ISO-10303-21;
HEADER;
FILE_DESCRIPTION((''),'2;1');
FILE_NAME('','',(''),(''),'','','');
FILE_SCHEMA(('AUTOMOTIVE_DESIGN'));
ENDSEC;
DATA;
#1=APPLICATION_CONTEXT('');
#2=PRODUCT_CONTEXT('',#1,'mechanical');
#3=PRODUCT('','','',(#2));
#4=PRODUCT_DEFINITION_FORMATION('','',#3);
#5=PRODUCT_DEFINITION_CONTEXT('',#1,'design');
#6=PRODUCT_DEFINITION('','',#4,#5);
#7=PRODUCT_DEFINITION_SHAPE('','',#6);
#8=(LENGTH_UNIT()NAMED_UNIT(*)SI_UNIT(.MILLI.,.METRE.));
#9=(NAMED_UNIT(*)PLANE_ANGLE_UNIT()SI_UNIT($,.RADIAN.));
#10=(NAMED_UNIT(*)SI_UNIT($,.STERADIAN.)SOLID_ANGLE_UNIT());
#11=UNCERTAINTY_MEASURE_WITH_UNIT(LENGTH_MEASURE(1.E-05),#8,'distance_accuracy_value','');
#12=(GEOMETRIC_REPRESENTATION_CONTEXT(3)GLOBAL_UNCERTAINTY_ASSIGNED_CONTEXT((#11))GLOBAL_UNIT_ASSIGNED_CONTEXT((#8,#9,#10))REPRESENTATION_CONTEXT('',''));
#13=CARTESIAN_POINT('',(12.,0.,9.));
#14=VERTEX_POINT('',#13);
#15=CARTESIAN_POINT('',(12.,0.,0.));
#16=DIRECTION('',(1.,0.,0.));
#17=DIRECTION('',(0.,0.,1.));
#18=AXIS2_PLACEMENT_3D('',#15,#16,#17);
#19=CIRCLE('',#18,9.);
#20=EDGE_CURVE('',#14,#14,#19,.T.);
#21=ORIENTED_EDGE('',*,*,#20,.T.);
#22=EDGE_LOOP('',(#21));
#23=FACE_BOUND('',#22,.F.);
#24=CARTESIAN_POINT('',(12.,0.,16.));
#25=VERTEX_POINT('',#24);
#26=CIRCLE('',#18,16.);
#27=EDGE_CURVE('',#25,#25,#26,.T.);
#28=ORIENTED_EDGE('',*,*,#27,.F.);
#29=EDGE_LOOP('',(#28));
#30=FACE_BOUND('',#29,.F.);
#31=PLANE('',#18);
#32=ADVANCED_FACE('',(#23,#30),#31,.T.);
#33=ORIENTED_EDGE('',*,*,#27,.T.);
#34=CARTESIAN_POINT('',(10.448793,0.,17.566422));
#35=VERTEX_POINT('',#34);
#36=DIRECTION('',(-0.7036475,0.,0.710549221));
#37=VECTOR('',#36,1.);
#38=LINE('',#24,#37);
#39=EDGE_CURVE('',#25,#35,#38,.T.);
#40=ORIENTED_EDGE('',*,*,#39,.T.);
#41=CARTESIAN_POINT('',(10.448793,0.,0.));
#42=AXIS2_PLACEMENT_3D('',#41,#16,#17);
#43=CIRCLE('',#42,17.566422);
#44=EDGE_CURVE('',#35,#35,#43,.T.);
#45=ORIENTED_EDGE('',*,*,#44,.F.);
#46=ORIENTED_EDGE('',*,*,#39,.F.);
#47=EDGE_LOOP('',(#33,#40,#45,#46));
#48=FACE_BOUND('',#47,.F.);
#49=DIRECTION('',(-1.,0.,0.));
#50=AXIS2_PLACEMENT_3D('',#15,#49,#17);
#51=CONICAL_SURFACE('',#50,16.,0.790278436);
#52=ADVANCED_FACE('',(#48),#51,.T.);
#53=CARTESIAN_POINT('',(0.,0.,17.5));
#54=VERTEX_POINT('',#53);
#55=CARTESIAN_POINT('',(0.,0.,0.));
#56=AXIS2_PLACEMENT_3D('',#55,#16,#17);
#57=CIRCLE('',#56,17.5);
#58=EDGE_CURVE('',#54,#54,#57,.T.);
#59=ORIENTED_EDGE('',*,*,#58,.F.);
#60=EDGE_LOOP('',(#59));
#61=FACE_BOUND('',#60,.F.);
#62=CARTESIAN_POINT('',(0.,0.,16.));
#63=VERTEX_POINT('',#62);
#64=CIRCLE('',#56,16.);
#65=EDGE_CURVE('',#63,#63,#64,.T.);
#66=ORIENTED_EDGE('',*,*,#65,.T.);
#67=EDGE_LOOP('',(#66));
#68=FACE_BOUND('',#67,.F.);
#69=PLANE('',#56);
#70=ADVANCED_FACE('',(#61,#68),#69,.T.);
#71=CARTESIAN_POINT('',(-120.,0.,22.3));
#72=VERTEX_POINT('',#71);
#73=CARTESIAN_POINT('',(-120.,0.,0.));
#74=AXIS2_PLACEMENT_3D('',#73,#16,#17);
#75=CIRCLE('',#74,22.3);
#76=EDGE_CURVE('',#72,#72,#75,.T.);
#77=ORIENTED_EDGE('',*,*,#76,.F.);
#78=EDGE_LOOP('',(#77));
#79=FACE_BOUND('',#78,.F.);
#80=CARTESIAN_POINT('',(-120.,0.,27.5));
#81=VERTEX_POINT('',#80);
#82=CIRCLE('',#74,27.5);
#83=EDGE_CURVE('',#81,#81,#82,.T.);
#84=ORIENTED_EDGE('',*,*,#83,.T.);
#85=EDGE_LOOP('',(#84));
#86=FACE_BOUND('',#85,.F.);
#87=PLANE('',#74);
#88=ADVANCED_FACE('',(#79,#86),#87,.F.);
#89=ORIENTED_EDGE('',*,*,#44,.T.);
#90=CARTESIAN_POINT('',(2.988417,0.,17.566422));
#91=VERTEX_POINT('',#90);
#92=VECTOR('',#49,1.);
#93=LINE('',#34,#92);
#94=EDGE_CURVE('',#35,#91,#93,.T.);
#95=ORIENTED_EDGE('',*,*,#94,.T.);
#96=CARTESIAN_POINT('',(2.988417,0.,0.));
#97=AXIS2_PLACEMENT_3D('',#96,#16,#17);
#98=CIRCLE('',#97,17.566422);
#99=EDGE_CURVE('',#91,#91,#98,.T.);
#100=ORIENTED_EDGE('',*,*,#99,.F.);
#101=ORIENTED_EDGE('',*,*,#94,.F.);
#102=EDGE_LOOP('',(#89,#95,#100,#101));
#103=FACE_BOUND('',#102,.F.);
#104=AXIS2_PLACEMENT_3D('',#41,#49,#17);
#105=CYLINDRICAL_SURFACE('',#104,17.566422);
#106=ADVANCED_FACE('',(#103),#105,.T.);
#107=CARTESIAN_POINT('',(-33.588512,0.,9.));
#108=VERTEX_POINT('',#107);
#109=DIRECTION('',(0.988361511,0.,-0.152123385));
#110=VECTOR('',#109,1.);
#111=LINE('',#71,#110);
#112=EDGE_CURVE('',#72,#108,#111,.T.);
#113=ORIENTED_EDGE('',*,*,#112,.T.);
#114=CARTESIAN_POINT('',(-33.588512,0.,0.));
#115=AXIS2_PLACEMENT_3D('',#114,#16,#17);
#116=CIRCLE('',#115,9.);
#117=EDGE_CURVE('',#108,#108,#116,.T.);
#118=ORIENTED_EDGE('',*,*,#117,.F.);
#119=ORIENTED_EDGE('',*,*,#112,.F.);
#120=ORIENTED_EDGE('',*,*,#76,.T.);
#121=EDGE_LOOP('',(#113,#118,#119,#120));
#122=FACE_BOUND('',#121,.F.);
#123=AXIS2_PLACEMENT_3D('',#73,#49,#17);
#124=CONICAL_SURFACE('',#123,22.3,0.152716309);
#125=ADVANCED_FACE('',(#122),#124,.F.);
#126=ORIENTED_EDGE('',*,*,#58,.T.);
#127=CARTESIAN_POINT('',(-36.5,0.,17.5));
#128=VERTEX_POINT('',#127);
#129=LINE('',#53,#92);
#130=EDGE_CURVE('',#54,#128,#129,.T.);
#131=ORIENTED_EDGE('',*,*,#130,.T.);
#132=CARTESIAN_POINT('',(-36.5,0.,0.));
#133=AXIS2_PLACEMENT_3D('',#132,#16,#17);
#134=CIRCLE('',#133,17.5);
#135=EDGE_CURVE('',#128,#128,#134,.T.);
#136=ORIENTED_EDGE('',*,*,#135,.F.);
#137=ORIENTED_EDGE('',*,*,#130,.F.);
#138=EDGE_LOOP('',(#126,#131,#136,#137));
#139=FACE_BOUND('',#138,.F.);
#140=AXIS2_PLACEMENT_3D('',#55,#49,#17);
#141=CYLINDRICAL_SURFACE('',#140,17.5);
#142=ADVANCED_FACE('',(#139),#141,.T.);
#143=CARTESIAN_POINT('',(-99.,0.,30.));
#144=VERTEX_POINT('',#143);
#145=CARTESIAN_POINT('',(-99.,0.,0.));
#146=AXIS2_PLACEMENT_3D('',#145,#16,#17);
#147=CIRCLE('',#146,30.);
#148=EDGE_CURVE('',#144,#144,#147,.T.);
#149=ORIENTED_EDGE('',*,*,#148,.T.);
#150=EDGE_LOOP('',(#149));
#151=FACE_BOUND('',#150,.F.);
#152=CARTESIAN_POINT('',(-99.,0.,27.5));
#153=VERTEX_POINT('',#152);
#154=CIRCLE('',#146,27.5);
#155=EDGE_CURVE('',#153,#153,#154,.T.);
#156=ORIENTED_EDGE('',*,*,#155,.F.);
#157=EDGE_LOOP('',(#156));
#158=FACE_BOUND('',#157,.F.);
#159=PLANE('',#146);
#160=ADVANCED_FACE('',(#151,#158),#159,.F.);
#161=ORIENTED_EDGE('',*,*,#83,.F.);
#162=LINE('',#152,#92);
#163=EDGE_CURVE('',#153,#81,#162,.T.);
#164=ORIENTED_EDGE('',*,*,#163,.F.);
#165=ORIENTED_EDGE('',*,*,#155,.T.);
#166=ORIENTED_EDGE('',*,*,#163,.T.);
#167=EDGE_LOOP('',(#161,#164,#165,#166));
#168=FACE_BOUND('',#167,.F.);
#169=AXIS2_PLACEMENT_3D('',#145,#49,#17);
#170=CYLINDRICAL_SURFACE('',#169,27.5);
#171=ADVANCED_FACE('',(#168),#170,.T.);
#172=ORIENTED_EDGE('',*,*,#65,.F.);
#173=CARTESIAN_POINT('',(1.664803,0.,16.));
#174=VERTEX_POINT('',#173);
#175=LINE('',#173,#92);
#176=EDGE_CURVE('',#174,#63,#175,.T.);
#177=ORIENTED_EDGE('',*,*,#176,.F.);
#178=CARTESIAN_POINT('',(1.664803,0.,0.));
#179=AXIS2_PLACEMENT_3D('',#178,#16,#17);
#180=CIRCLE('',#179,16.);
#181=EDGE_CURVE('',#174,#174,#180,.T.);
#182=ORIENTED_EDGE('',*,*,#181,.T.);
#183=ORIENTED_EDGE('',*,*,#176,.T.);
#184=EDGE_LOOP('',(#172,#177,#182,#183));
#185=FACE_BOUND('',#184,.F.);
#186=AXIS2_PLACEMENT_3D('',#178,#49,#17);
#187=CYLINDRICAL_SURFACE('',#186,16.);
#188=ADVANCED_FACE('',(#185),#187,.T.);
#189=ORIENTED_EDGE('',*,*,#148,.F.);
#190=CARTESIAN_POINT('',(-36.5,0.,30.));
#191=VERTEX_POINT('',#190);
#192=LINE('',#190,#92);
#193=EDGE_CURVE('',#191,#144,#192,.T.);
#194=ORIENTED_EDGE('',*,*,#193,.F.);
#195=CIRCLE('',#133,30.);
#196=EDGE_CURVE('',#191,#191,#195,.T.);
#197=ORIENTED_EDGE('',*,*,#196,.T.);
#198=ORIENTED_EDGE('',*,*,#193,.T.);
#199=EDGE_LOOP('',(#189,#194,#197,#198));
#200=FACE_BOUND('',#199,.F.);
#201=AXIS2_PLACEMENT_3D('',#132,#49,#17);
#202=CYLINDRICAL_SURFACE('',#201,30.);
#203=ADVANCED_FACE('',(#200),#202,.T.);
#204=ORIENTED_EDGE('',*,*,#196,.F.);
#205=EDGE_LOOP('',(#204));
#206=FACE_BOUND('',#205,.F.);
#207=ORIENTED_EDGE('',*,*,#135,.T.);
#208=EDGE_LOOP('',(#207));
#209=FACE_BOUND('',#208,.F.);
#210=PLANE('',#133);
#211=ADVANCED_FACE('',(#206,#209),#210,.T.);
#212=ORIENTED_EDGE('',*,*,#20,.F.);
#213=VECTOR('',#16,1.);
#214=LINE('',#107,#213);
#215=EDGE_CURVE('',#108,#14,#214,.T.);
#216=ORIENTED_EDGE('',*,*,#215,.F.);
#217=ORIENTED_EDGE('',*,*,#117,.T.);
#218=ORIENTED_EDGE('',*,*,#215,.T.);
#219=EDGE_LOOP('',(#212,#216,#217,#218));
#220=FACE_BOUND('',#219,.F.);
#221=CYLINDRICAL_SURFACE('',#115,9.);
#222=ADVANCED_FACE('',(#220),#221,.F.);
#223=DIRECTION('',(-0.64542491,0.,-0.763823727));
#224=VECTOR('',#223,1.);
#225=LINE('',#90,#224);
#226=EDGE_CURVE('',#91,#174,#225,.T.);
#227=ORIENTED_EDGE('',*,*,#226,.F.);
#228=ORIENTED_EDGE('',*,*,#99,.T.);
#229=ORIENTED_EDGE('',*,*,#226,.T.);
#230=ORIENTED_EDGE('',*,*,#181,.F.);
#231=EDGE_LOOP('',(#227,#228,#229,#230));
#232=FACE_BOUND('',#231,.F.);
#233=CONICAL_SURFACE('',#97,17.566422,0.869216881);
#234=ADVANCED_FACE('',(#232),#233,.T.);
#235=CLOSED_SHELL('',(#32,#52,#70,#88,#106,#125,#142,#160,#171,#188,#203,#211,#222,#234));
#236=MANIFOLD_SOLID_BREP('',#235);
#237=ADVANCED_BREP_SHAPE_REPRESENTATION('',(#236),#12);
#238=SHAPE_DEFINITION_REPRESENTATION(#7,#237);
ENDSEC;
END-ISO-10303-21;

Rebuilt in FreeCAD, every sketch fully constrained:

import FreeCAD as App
import Part
import Sketcher
from FreeCAD import Vector
Q = App.Units.Quantity

doc = App.newDocument("Part")
body = doc.addObject("PartDesign::Body", "Body")

# Sketch on XZ plane
sketch1 = body.newObject("Sketcher::SketchObject", "Sketch")
sketch1.AttachmentSupport = (doc.getObject("XZ_Plane"), [""])
sketch1.MapMode = "FlatFace"
sketch1.addGeometry([
    Part.LineSegment(Vector(-99, 27.5, 0), Vector(-120, 27.5, 0)),  # 0
    Part.LineSegment(Vector(-120, 27.5, 0), Vector(-120, 22.3, 0)),  # 1
    Part.LineSegment(Vector(-120, 22.3, 0), Vector(-33.6, 9, 0)),  # 2
    Part.LineSegment(Vector(-33.6, 9, 0), Vector(12, 9, 0)),  # 3
    Part.LineSegment(Vector(12, 9, 0), Vector(12, 16, 0)),  # 4
    Part.LineSegment(Vector(12, 16, 0), Vector(10.4, 17.6, 0)),  # 5
    Part.LineSegment(Vector(10.4, 17.6, 0), Vector(3, 17.6, 0)),  # 6
    Part.LineSegment(Vector(3, 17.6, 0), Vector(1.7, 16, 0)),  # 7
    Part.LineSegment(Vector(1.7, 16, 0), Vector(0, 16, 0)),  # 8
    Part.LineSegment(Vector(0, 16, 0), Vector(0, 17.5, 0)),  # 9
    Part.LineSegment(Vector(0, 17.5, 0), Vector(-36.5, 17.5, 0)),  # 10
    Part.LineSegment(Vector(-36.5, 17.5, 0), Vector(-36.5, 30, 0)),  # 11
    Part.LineSegment(Vector(-36.5, 30, 0), Vector(-99, 30, 0)),  # 12
    Part.LineSegment(Vector(-99, 30, 0), Vector(-99, 27.5, 0)),  # 13
], False)
sketch1.addConstraint([
    Sketcher.Constraint("Coincident", 0, 2, 1, 1),
    Sketcher.Constraint("Coincident", 1, 2, 2, 1),
    Sketcher.Constraint("Coincident", 2, 2, 3, 1),
    Sketcher.Constraint("Coincident", 3, 2, 4, 1),
    Sketcher.Constraint("Coincident", 4, 2, 5, 1),
    Sketcher.Constraint("Coincident", 5, 2, 6, 1),
    Sketcher.Constraint("Coincident", 6, 2, 7, 1),
    Sketcher.Constraint("Coincident", 7, 2, 8, 1),
    Sketcher.Constraint("Coincident", 8, 2, 9, 1),
    Sketcher.Constraint("Coincident", 9, 2, 10, 1),
    Sketcher.Constraint("Coincident", 10, 2, 11, 1),
    Sketcher.Constraint("Coincident", 11, 2, 12, 1),
    Sketcher.Constraint("Coincident", 12, 2, 13, 1),
    Sketcher.Constraint("Coincident", 13, 2, 0, 1),
    Sketcher.Constraint("Horizontal", 0),
    Sketcher.Constraint("Vertical", 1),
    Sketcher.Constraint("Horizontal", 3),
    Sketcher.Constraint("Vertical", 4),
    Sketcher.Constraint("Horizontal", 6),
    Sketcher.Constraint("Horizontal", 8),
    Sketcher.Constraint("Vertical", 9),
    Sketcher.Constraint("Horizontal", 10),
    Sketcher.Constraint("Vertical", 11),
    Sketcher.Constraint("Horizontal", 12),
    Sketcher.Constraint("Vertical", 13),
    Sketcher.Constraint("PointOnObject", 8, 2, -2),
    Sketcher.Constraint("Horizontal", 4, 2, 7, 2),
    Sketcher.Constraint("DistanceX", 0, 2, 0, 1, 21.0),
    Sketcher.Constraint("DistanceY", 4, 1, 4, 2, 7.0),
    Sketcher.Constraint("DistanceX", 10, 2, 10, 1, 36.5),
    Sketcher.Constraint("DistanceX", 12, 2, 12, 1, 62.5),
    Sketcher.Constraint("DistanceY", 1, 2, 1, 1, 5.2),
    Sketcher.Constraint("DistanceY", 9, 1, 9, 2, 1.5),
    Sketcher.Constraint("DistanceY", 11, 1, 11, 2, 12.5),
    Sketcher.Constraint("DistanceY", 13, 2, 13, 1, 2.5),
    Sketcher.Constraint("DistanceY", -1, 1, 2, 2, 9.0),
    Sketcher.Constraint("DistanceX", -1, 1, 3, 2, 12.0),
    Sketcher.Constraint("Angle", 2, Q("-8.75 deg")),
    Sketcher.Constraint("DistanceX", 6, 2, 6, 1, 7.460376),
    Sketcher.Constraint("DistanceX", 8, 2, 8, 1, 1.664803),
    Sketcher.Constraint("DistanceY", -1, 1, 5, 2, 17.566422),
    Sketcher.Constraint("DistanceX", 2, 2, 6, 2, 36.576929),
])
revolution = body.newObject("PartDesign::Revolution", "Revolution")
revolution.Profile = sketch1
revolution.ReferenceAxis = (sketch1, ["H_Axis"])
revolution.Angle = 360

doc.recompute()
